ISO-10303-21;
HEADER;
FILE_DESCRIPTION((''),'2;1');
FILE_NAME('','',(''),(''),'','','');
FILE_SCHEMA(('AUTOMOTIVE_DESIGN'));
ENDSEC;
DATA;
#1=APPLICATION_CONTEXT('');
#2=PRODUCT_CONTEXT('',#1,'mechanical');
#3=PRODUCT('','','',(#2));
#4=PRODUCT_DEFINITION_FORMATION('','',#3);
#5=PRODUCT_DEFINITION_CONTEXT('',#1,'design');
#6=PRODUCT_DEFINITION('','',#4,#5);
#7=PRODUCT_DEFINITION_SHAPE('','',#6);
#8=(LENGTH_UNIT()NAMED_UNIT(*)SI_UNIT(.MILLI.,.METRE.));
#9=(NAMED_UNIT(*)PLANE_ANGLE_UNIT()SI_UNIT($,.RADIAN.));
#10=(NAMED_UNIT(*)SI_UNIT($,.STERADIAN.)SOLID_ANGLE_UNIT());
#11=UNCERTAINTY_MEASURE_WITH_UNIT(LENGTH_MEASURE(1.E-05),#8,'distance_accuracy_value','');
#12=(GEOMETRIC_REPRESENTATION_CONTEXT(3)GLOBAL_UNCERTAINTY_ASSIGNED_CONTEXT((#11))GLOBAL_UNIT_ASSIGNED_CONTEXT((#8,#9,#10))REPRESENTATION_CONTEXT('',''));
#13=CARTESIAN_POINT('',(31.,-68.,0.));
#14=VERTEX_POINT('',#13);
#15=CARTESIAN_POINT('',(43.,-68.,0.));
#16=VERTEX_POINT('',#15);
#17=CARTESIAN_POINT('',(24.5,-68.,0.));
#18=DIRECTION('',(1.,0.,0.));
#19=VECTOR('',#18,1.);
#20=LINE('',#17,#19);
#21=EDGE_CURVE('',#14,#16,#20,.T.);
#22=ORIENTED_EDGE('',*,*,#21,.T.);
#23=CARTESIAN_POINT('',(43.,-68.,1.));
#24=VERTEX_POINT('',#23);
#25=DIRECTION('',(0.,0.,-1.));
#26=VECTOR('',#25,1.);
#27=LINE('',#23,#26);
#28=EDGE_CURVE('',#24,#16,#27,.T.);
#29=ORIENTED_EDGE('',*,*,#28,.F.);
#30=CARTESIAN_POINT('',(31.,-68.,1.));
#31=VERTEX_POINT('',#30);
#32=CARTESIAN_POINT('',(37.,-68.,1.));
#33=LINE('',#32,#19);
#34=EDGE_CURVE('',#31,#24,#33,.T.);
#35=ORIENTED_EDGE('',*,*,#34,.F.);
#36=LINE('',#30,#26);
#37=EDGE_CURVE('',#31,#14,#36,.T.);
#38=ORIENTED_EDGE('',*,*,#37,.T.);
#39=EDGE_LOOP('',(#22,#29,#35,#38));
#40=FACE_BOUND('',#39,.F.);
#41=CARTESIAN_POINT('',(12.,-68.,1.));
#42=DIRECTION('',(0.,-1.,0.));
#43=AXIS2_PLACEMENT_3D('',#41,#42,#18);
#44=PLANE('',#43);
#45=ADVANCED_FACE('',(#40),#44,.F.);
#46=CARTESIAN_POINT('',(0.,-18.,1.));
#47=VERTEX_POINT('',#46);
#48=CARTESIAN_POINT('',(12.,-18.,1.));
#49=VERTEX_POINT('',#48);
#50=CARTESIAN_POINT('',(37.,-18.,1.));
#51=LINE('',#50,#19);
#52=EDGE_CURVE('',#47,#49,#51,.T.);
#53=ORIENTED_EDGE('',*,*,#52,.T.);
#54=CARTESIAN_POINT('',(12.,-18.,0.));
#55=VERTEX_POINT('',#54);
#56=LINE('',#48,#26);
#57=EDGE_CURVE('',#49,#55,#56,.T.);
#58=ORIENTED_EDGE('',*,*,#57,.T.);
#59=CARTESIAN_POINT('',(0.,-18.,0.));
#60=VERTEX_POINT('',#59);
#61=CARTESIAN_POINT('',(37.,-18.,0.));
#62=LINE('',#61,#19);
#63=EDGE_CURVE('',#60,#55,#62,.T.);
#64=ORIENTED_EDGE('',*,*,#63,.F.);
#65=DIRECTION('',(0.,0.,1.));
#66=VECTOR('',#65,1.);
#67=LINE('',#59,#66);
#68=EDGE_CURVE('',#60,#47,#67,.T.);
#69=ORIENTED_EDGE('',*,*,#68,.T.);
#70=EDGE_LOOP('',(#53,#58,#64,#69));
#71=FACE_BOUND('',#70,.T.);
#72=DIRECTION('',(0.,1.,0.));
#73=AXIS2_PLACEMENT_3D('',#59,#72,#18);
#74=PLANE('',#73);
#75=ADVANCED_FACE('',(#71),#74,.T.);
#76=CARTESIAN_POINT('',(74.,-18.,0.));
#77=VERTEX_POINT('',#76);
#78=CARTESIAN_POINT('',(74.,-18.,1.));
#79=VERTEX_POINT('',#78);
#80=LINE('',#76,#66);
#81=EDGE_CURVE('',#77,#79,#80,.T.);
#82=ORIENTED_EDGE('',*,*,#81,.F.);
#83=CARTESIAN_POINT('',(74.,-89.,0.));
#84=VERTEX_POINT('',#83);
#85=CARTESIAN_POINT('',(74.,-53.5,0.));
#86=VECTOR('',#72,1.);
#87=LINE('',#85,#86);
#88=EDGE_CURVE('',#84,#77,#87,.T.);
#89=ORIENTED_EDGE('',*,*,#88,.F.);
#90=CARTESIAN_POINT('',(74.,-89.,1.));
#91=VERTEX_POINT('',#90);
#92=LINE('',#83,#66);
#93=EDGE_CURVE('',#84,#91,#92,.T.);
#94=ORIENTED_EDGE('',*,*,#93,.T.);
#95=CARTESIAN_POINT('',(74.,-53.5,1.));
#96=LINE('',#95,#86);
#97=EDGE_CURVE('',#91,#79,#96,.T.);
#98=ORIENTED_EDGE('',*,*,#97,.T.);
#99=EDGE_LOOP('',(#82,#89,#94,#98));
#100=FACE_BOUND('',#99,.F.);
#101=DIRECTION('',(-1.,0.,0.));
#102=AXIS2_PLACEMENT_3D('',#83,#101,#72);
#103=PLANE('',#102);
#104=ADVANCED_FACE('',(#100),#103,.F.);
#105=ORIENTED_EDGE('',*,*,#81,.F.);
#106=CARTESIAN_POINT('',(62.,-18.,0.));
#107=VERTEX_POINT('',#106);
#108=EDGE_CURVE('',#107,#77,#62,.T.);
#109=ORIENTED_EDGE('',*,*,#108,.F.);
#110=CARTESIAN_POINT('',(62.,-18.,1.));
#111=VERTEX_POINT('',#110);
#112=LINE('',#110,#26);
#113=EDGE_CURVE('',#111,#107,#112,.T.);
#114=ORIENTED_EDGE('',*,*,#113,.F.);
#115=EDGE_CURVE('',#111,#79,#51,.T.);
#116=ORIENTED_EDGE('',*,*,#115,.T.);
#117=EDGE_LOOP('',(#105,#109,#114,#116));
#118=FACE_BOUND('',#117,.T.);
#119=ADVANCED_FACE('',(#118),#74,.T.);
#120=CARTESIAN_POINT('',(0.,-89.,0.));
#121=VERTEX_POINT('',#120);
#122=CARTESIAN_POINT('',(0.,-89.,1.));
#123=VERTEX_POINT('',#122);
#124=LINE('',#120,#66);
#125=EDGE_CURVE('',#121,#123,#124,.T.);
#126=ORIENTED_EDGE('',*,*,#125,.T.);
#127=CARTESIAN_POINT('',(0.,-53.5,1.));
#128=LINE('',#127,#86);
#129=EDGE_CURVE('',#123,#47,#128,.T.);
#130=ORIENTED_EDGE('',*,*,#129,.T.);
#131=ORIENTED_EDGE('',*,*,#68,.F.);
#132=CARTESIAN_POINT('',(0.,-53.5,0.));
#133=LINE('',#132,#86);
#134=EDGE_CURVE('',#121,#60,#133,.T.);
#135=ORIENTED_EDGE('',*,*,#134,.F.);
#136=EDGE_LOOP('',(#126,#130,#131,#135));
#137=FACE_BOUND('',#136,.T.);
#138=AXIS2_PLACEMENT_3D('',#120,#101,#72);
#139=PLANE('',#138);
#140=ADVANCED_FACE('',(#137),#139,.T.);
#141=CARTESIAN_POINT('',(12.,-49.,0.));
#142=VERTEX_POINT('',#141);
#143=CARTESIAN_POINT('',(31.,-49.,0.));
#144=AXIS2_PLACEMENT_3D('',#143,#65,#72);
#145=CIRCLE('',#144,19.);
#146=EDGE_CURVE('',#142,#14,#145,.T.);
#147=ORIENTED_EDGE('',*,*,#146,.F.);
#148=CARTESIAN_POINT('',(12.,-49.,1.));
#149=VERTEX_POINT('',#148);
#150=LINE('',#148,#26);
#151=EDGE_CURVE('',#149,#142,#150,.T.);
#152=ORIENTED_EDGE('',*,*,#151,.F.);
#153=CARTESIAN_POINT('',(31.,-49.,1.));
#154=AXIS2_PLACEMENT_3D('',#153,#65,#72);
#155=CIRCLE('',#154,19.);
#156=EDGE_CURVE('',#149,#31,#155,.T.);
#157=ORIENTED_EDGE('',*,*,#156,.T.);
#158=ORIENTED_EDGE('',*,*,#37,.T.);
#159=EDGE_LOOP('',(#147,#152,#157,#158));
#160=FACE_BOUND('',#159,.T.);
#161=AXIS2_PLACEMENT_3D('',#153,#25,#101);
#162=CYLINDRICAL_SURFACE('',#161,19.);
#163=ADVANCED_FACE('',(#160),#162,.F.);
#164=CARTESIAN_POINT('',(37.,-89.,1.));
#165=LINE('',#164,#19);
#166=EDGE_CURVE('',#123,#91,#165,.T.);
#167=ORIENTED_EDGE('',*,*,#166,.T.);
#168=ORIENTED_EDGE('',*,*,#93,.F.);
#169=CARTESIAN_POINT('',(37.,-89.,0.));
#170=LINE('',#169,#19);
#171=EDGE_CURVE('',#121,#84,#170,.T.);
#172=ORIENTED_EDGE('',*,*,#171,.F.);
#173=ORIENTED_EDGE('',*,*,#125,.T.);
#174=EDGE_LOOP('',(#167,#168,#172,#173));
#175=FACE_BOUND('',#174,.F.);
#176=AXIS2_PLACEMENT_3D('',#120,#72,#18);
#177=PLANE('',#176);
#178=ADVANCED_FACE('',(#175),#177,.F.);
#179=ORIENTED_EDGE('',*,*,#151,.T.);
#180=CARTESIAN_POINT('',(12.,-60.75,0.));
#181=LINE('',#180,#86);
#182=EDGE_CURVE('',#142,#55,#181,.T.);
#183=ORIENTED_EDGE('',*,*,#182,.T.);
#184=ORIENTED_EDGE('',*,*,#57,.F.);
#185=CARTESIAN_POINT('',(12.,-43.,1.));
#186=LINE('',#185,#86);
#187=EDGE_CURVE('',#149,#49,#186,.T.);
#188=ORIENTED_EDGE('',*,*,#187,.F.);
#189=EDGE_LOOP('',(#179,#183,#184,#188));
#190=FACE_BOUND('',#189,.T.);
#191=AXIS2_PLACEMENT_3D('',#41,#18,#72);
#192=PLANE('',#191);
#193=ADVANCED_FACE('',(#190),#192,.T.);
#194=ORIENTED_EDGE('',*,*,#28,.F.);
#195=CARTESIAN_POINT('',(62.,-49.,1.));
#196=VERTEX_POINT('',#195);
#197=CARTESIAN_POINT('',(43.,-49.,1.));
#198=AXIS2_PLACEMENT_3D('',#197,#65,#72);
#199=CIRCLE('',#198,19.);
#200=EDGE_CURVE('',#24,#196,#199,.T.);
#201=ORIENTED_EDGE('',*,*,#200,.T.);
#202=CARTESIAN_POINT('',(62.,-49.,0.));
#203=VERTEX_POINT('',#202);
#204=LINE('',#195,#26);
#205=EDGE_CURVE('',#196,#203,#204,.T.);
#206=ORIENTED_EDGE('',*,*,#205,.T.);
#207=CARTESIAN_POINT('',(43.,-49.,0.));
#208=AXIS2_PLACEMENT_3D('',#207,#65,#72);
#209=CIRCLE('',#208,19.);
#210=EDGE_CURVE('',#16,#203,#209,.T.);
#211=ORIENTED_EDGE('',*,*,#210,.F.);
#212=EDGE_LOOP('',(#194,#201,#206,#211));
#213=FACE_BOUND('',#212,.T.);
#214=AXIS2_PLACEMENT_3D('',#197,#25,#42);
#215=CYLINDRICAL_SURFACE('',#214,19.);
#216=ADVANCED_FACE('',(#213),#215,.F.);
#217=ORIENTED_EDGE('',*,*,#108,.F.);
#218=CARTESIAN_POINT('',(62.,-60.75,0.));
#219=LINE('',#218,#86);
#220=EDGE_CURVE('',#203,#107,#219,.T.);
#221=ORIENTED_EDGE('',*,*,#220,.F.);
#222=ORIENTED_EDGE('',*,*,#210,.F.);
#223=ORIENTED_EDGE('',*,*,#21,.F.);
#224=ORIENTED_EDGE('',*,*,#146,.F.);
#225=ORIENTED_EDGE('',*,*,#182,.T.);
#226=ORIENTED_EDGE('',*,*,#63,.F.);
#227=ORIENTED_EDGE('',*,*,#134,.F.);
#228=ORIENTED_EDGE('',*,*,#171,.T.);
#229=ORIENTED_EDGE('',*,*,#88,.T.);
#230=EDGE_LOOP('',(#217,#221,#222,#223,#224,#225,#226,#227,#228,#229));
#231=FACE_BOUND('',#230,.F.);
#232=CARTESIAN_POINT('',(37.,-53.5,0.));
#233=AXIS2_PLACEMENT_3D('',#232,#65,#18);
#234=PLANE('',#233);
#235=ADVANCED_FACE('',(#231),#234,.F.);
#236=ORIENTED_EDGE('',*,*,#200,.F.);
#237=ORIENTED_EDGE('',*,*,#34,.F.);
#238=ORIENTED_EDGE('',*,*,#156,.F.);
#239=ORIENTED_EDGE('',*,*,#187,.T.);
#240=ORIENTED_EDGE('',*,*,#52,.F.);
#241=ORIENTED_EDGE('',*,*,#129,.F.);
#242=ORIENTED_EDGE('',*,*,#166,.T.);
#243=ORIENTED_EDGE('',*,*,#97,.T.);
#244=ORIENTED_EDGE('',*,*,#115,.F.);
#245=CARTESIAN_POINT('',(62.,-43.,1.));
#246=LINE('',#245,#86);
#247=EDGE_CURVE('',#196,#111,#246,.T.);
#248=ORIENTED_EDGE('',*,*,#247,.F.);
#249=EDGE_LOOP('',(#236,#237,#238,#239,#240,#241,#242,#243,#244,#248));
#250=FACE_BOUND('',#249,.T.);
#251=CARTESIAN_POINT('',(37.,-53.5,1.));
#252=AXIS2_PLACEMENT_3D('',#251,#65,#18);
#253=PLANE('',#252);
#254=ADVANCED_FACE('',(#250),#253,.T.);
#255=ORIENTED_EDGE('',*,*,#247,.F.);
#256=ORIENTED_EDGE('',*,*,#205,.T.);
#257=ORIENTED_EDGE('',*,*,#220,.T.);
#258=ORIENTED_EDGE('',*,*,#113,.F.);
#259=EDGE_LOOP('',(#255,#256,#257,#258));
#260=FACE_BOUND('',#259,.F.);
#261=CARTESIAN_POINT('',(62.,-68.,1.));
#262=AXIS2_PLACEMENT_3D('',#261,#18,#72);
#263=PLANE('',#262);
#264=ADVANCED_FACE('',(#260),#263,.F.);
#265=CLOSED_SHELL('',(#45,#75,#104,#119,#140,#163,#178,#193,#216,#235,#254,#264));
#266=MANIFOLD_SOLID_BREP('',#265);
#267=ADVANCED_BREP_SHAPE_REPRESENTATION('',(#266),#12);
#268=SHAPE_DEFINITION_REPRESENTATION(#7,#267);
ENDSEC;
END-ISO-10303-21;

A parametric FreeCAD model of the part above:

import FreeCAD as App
import Part
import Sketcher
Q = App.Units.Quantity


def edges_at(feature, points):
    """Names of the edges that pass closest to the given points."""
    edges = feature.Shape.Edges
    near = lambda p: min(range(len(edges)), key=lambda i: edges[i].distToShape(Part.Vertex(*p))[0])
    return sorted({f"Edge{near(p) + 1}" for p in points})

doc = App.newDocument("Part")
body = doc.addObject("PartDesign::Body", "Body")

# Sketch on XY plane
sketch1 = doc.addObject("Sketcher::SketchObject", "Sketch")
body.addObject(sketch1)
sketch1.AttachmentSupport = (doc.XY_Plane, [""])
sketch1.MapMode = "FlatFace"
sketch1.AttachmentOffset = App.Placement(App.Vector(0, 0, 1), App.Rotation())
sketch1.addGeometry([
    Part.LineSegment(App.Vector(2, 71, 0), App.Vector(2, 0, 0)),
    Part.LineSegment(App.Vector(2, 0, 0), App.Vector(76, 0, 0)),
    Part.LineSegment(App.Vector(76, 0, 0), App.Vector(76, 71, 0)),
    Part.LineSegment(App.Vector(76, 71, 0), App.Vector(2, 71, 0)),
], False)
sketch1.addConstraint([
    Sketcher.Constraint("Coincident", 0, 2, 1, 1),
    Sketcher.Constraint("Coincident", 1, 2, 2, 1),
    Sketcher.Constraint("Coincident", 2, 2, 3, 1),
    Sketcher.Constraint("Coincident", 3, 2, 0, 1),
    Sketcher.Constraint("Vertical", 0),
    Sketcher.Constraint("Horizontal", 1),
    Sketcher.Constraint("Vertical", 2),
    Sketcher.Constraint("Horizontal", 3),
    Sketcher.Constraint("PointOnObject", 0, 2, -1),
    Sketcher.Constraint("DistanceX", 1, 1, 1, 2, Q("74 mm")),
    Sketcher.Constraint("DistanceY", 0, 2, 0, 1, Q("71 mm")),
    Sketcher.Constraint("DistanceX", -1, 1, 0, 2, Q("2 mm")),
])
pad1 = doc.addObject("PartDesign::Pad", "Pad")
body.addObject(pad1)
pad1.Profile = sketch1
pad1.Length = 1
body2 = doc.addObject("PartDesign::Body", "Body001")
doc.recompute()

body.Placement = App.Placement(App.Vector(-2, 0, -1), App.Rotation(App.Vector(0, 0, 1), 0))
boolean = doc.addObject("PartDesign::Boolean", "Boolean")
body2.addObject(boolean)
boolean.Type = "Fuse"
boolean.addObjects([body])

# Sketch on XY plane
sketch2 = doc.addObject("Sketcher::SketchObject", "Sketch001")
body2.addObject(sketch2)
sketch2.AttachmentSupport = (doc.getObject("XY_Plane001"), [""])
sketch2.MapMode = "FlatFace"
sketch2.AttachmentOffset = App.Placement(App.Vector(0, 0, 1), App.Rotation())
sketch2.addGeometry([
    Part.LineSegment(App.Vector(12, 71, 0), App.Vector(12, 21, 0)),
    Part.LineSegment(App.Vector(12, 21, 0), App.Vector(62, 21, 0)),
    Part.LineSegment(App.Vector(62, 21, 0), App.Vector(62, 71, 0)),
    Part.LineSegment(App.Vector(62, 71, 0), App.Vector(12, 71, 0)),
], False)
sketch2.addConstraint([
    Sketcher.Constraint("Coincident", 0, 2, 1, 1),
    Sketcher.Constraint("Coincident", 1, 2, 2, 1),
    Sketcher.Constraint("Coincident", 2, 2, 3, 1),
    Sketcher.Constraint("Coincident", 3, 2, 0, 1),
    Sketcher.Constraint("Vertical", 0),
    Sketcher.Constraint("Horizontal", 1),
    Sketcher.Constraint("Vertical", 2),
    Sketcher.Constraint("Horizontal", 3),
    Sketcher.Constraint("Equal", 3, 0),
    Sketcher.Constraint("DistanceX", 1, 1, 1, 2, Q("50 mm")),
    Sketcher.Constraint("DistanceX", -1, 1, 0, 2, Q("12 mm")),
    Sketcher.Constraint("DistanceY", -1, 1, 0, 2, Q("21 mm")),
])
pocket1 = doc.addObject("PartDesign::Pocket", "Pocket")
body2.addObject(pocket1)
pocket1.Profile = sketch2
pocket1.Type = "ThroughAll"
doc.recompute()

fillet = doc.addObject("PartDesign::Fillet", "Fillet")
body2.addObject(fillet)
fillet.Base = (pocket1, edges_at(pocket1, [(12, 21, 0.5), (62, 21, 0.5)]))
fillet.Radius = 19
body3 = doc.addObject("PartDesign::Body", "Body002")
doc.recompute()

body2.Placement = App.Placement(App.Vector(0, -89, 0), App.Rotation(App.Vector(0, 0, 1), 0))
boolean2 = doc.addObject("PartDesign::Boolean", "Boolean001")
body3.addObject(boolean2)
boolean2.Type = "Fuse"
boolean2.addObjects([body2])

doc.recompute()
